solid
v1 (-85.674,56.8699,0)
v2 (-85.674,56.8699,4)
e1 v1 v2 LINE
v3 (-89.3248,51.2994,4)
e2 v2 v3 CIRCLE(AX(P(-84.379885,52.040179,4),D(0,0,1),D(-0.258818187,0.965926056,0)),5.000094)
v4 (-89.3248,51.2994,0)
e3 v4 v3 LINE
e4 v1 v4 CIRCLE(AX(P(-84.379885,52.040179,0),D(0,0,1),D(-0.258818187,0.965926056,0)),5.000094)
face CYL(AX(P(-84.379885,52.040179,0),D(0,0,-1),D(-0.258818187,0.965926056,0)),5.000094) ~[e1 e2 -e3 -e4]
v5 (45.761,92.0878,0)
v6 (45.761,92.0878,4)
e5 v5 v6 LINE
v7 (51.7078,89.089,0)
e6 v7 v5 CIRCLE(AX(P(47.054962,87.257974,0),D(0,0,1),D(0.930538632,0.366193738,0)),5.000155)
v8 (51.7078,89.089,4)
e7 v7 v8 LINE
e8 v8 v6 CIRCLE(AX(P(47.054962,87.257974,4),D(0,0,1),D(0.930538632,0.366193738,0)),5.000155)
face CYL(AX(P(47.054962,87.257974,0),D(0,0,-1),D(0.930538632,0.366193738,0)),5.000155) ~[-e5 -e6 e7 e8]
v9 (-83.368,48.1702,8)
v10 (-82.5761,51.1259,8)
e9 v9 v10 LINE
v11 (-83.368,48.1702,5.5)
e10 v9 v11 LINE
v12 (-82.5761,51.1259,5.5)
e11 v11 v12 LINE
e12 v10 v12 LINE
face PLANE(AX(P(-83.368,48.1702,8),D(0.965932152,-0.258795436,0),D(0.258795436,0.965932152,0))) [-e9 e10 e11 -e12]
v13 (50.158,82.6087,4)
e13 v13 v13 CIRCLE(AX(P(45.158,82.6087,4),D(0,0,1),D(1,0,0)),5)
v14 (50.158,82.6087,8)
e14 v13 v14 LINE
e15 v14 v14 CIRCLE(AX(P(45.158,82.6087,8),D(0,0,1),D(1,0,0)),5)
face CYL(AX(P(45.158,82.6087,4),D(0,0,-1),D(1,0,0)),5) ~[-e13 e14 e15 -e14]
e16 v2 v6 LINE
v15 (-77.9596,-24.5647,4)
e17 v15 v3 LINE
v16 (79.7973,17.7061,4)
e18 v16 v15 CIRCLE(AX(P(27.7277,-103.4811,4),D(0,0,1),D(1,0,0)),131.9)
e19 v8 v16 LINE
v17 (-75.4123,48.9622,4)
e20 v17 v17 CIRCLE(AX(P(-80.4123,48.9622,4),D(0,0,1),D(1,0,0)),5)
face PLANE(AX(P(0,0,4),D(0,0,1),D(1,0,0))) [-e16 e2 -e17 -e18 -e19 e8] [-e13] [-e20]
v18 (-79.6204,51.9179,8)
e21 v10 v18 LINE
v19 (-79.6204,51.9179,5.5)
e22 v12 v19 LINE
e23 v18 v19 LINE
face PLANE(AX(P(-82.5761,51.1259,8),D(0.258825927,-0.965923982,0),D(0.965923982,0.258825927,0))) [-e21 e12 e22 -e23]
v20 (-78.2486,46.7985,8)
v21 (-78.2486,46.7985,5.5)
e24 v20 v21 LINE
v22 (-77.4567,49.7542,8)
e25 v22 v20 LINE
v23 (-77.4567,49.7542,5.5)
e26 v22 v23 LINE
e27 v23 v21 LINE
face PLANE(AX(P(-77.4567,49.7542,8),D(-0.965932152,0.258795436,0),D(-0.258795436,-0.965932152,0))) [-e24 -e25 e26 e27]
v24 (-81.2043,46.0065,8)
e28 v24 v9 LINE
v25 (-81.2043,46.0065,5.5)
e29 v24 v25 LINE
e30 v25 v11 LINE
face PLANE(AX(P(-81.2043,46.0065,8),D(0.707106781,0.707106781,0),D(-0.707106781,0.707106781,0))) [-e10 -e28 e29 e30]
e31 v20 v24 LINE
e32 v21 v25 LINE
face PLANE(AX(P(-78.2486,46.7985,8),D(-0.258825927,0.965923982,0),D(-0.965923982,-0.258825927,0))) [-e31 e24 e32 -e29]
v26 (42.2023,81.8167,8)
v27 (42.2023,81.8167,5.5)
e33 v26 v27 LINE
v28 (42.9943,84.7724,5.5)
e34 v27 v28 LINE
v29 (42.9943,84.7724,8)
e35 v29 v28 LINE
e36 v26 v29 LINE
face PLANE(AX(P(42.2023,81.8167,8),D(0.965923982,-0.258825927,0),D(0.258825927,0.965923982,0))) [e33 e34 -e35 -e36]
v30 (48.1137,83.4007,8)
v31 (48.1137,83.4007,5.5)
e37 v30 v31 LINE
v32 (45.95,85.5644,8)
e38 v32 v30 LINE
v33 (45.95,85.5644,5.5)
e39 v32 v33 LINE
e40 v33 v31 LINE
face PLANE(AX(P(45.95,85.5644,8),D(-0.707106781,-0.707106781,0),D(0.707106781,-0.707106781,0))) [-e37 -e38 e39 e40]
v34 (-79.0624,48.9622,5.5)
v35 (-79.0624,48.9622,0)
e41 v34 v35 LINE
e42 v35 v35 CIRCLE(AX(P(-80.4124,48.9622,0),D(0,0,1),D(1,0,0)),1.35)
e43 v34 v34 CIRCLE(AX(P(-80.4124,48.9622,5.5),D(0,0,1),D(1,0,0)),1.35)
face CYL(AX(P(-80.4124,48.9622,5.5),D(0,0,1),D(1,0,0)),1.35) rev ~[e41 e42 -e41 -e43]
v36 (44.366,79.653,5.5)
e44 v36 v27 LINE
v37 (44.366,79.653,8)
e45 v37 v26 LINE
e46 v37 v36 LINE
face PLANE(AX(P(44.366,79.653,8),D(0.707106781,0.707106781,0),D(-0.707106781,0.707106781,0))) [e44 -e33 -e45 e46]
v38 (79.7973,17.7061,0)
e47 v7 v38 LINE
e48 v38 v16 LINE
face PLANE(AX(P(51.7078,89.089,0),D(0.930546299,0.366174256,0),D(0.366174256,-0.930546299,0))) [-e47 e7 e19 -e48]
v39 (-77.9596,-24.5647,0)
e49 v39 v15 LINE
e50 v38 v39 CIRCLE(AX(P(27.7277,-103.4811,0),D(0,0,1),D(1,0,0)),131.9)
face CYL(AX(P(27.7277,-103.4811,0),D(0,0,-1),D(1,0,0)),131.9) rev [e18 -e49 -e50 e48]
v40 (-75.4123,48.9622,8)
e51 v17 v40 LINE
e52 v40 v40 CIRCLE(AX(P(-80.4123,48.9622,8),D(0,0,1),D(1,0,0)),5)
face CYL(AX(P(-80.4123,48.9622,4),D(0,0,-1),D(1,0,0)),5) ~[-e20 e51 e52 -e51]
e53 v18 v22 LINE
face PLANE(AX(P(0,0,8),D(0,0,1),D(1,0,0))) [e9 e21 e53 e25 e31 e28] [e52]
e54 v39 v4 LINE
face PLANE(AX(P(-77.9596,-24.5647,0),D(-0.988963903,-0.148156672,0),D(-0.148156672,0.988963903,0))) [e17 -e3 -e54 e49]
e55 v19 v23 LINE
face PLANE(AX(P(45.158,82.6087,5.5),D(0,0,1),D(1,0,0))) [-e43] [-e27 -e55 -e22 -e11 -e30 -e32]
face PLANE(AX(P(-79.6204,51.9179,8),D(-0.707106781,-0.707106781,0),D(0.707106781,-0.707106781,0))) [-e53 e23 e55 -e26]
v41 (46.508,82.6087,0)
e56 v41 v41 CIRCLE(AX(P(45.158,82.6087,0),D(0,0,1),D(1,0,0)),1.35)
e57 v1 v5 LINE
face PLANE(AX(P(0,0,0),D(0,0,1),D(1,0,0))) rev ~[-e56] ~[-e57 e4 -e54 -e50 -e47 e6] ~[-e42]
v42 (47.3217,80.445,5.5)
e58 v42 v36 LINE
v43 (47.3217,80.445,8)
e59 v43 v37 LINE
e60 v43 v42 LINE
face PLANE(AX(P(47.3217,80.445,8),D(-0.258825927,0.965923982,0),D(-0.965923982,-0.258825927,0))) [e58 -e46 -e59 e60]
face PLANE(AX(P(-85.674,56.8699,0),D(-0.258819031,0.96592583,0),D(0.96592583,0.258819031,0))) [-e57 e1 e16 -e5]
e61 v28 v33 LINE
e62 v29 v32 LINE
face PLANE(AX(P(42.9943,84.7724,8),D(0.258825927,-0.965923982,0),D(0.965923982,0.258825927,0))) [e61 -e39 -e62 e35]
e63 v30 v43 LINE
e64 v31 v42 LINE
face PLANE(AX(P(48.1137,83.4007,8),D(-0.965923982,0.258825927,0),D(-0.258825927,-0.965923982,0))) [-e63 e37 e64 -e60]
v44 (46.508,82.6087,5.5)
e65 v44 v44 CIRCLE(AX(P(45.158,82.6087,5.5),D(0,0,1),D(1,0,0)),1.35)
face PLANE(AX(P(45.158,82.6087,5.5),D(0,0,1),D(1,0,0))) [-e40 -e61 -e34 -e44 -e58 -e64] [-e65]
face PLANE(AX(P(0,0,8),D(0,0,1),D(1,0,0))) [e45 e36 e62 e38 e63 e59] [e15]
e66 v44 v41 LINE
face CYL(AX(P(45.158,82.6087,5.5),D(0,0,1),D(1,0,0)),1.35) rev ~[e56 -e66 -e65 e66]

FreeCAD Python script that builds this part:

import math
import FreeCAD as App
import Part
import Sketcher
Q = App.Units.Quantity

doc = App.newDocument("Part")
params = doc.addObject("Spreadsheet::Sheet", "Params")
for row, (alias, value) in enumerate([
    ("sketch1_radius", "5 mm"),
    ("sketch1_radius2", "131.9 mm"),
    ("pad1_length", "4 mm"),
    ("sketch2_diameter", "10 mm"),
    ("pad2_length", "4 mm"),
    ("sketch3_length", "3.06 mm"),
    ("pocket1_length", "2.5 mm"),
    ("sketch4_diameter", "2.7 mm"),
    ("pocket2_length", "5.5 mm"),
], start=1):
    params.set(f"A{row}", alias)
    params.set(f"B{row}", "=" + value)
    params.setAlias(f"B{row}", alias)

body = doc.addObject("PartDesign::Body", "Body")

sketch1 = doc.addObject("Sketcher::SketchObject", "Sketch")
body.addObject(sketch1)
sketch1.AttachmentSupport = (doc.XY_Plane, [""])
sketch1.MapMode = "FlatFace"
sketch1.addGeometry(Part.LineSegment(App.Vector(-89.3, 51.3, 0), App.Vector(-78, -24.6, 0)), False)
sketch1.addGeometry(Part.ArcOfCircle(Part.Circle(App.Vector(27.7, -103.5, 0), App.Vector(0, 0, 1), 131.9), math.radians(67), math.radians(143)), False)
sketch1.addGeometry(Part.LineSegment(App.Vector(79.8, 17.7, 0), App.Vector(51.7, 89.1, 0)), False)
sketch1.addGeometry(Part.ArcOfCircle(Part.Circle(App.Vector(47.1, 87.3, 0), App.Vector(0, 0, 1), 5), math.radians(21), math.radians(105)), False)
sketch1.addGeometry(Part.LineSegment(App.Vector(45.8, 92.1, 0), App.Vector(-85.7, 56.9, 0)), False)
sketch1.addGeometry(Part.ArcOfCircle(Part.Circle(App.Vector(-84.4, 52, 0), App.Vector(0, 0, 1), 5), math.radians(105), math.radians(189)), False)
sketch1.addConstraint(Sketcher.Constraint("Coincident", 0, 2, 1, 2))
sketch1.addConstraint(Sketcher.Constraint("Coincident", 1, 1, 2, 1))
sketch1.addConstraint(Sketcher.Constraint("Tangent", 2, 2, 3, 1))
sketch1.addConstraint(Sketcher.Constraint("Tangent", 3, 2, 4, 1))
sketch1.addConstraint(Sketcher.Constraint("Tangent", 4, 2, 5, 1))
sketch1.addConstraint(Sketcher.Constraint("Tangent", 5, 2, 0, 1))
sketch1.addConstraint(Sketcher.Constraint("Equal", 3, 5))
sketch1.addConstraint(Sketcher.Constraint("Equal", 0, 2))
sketch1.addConstraint(Sketcher.Constraint("Radius", 3, 5.0))
sketch1.addConstraint(Sketcher.Constraint("Radius", 1, 131.9))
sketch1.addConstraint(Sketcher.Constraint("Angle", 4, Q("-165 deg")))
sketch1.addConstraint(Sketcher.Constraint("Angle", 0, Q("-81.48 deg")))
sketch1.addConstraint(Sketcher.Constraint("Angle", 2, Q("111.4799 deg")))
sketch1.addConstraint(Sketcher.Constraint("DistanceX", 5, 3, -1, 1, 84.38))
sketch1.addConstraint(Sketcher.Constraint("DistanceY", -1, 1, 4, 2, 56.87))
sketch1.addConstraint(Sketcher.Constraint("DistanceX", 1, 3, 2, 2, 23.98))
sketch1.addConstraint(Sketcher.Constraint("DistanceY", 1, 3, 2, 2, 192.57))
sketch1.setExpression("Constraints[8]", "Params.sketch1_radius")
sketch1.setExpression("Constraints[9]", "Params.sketch1_radius2")
pad1 = doc.addObject("PartDesign::Pad", "Pad")
body.addObject(pad1)
pad1.Profile = sketch1
pad1.setExpression("Length", "Params.pad1_length")

sketch2 = doc.addObject("Sketcher::SketchObject", "Sketch001")
body.addObject(sketch2)
sketch2.AttachmentSupport = (doc.XY_Plane, [""])
sketch2.MapMode = "FlatFace"
sketch2.AttachmentOffset = App.Placement(App.Vector(0, 0, 4), App.Rotation())
sketch2.addGeometry(Part.Circle(App.Vector(-80, 49, 0), App.Vector(0, 0, 1), 5), False)
sketch2.addGeometry(Part.Circle(App.Vector(45, 83, 0), App.Vector(0, 0, 1), 5), False)
sketch2.addConstraint(Sketcher.Constraint("Equal", 0, 1))
sketch2.addConstraint(Sketcher.Constraint("Diameter", 0, 10.0))
sketch2.addConstraint(Sketcher.Constraint("DistanceX", -1, 1, 1, 3, 45.158))
sketch2.addConstraint(Sketcher.Constraint("DistanceX", 0, 3, -1, 1, 80.4123))
sketch2.addConstraint(Sketcher.Constraint("DistanceY", -1, 1, 0, 3, 48.9622))
sketch2.addConstraint(Sketcher.Constraint("DistanceY", -1, 1, 1, 3, 82.6087))
sketch2.setExpression("Constraints[1]", "Params.sketch2_diameter")
pad2 = doc.addObject("PartDesign::Pad", "Pad001")
body.addObject(pad2)
pad2.Profile = sketch2
pad2.setExpression("Length", "Params.pad2_length")

sketch3 = doc.addObject("Sketcher::SketchObject", "Sketch002")
body.addObject(sketch3)
sketch3.AttachmentSupport = (doc.XY_Plane, [""])
sketch3.MapMode = "FlatFace"
sketch3.AttachmentOffset = App.Placement(App.Vector(0, 0, 8), App.Rotation())
sketch3.addGeometry(Part.LineSegment(App.Vector(-77.5, 49.8, 0), App.Vector(-79.6, 51.9, 0)), False)
sketch3.addGeometry(Part.LineSegment(App.Vector(-79.6, 51.9, 0), App.Vector(-82.6, 51.1, 0)), False)
sketch3.addGeometry(Part.LineSegment(App.Vector(-82.6, 51.1, 0), App.Vector(-83.4, 48.2, 0)), False)
sketch3.addGeometry(Part.LineSegment(App.Vector(-83.4, 48.2, 0), App.Vector(-81.2, 46, 0)), False)
sketch3.addGeometry(Part.LineSegment(App.Vector(-81.2, 46, 0), App.Vector(-78.2, 46.8, 0)), False)
sketch3.addGeometry(Part.LineSegment(App.Vector(-78.2, 46.8, 0), App.Vector(-77.5, 49.8, 0)), False)
sketch3.addGeometry(Part.LineSegment(App.Vector(48.1, 83.4, 0), App.Vector(46, 85.6, 0)), False)
sketch3.addGeometry(Part.LineSegment(App.Vector(46, 85.6, 0), App.Vector(43, 84.8, 0)), False)
sketch3.addGeometry(Part.LineSegment(App.Vector(43, 84.8, 0), App.Vector(42.2, 81.8, 0)), False)
sketch3.addGeometry(Part.LineSegment(App.Vector(42.2, 81.8, 0), App.Vector(44.4, 79.7, 0)), False)
sketch3.addGeometry(Part.LineSegment(App.Vector(44.4, 79.7, 0), App.Vector(47.3, 80.4, 0)), False)
sketch3.addGeometry(Part.LineSegment(App.Vector(47.3, 80.4, 0), App.Vector(48.1, 83.4, 0)), False)
sketch3.addConstraint(Sketcher.Constraint("Coincident", 0, 2, 1, 1))
sketch3.addConstraint(Sketcher.Constraint("Coincident", 1, 2, 2, 1))
sketch3.addConstraint(Sketcher.Constraint("Coincident", 2, 2, 3, 1))
sketch3.addConstraint(Sketcher.Constraint("Coincident", 3, 2, 4, 1))
sketch3.addConstraint(Sketcher.Constraint("Coincident", 4, 2, 5, 1))
sketch3.addConstraint(Sketcher.Constraint("Coincident", 5, 2, 0, 1))
sketch3.addConstraint(Sketcher.Constraint("Coincident", 6, 2, 7, 1))
sketch3.addConstraint(Sketcher.Constraint("Coincident", 7, 2, 8, 1))
sketch3.addConstraint(Sketcher.Constraint("Coincident", 8, 2, 9, 1))
sketch3.addConstraint(Sketcher.Constraint("Coincident", 9, 2, 10, 1))
sketch3.addConstraint(Sketcher.Constraint("Coincident", 10, 2, 11, 1))
sketch3.addConstraint(Sketcher.Constraint("Coincident", 11, 2, 6, 1))
sketch3.addConstraint(Sketcher.Constraint("Parallel", 0, 3))
sketch3.addConstraint(Sketcher.Constraint("Parallel", 1, 4))
sketch3.addConstraint(Sketcher.Constraint("Parallel", 2, 5))
sketch3.addConstraint(Sketcher.Constraint("Parallel", 3, 6))
sketch3.addConstraint(Sketcher.Constraint("Parallel", 4, 7))
sketch3.addConstraint(Sketcher.Constraint("Parallel", 5, 8))
sketch3.addConstraint(Sketcher.Constraint("Parallel", 6, 9))
sketch3.addConstraint(Sketcher.Constraint("Parallel", 7, 10))
sketch3.addConstraint(Sketcher.Constraint("Parallel", 8, 11))
sketch3.addConstraint(Sketcher.Constraint("Equal", 0, 1))
sketch3.addConstraint(Sketcher.Constraint("Equal", 1, 2))
sketch3.addConstraint(Sketcher.Constraint("Equal", 2, 3))
sketch3.addConstraint(Sketcher.Constraint("Equal", 5, 6))
sketch3.addConstraint(Sketcher.Constraint("Equal", 6, 7))
sketch3.addConstraint(Sketcher.Constraint("Equal", 7, 8))
sketch3.addConstraint(Sketcher.Constraint("Equal", 8, 9))
sketch3.addConstraint(Sketcher.Constraint("Angle", 0, Q("135 deg")))
sketch3.addConstraint(Sketcher.Constraint("Angle", 1, Q("-164.9996 deg")))
sketch3.addConstraint(Sketcher.Constraint("Angle", 8, Q("-105.0004 deg")))
sketch3.addConstraint(Sketcher.Constraint("Distance", 0, 3.06))
sketch3.addConstraint(Sketcher.Constraint("DistanceX", -1, 1, 6, 2, 45.95))
sketch3.addConstraint(Sketcher.Constraint("DistanceY", -1, 1, 0, 2, 51.918))
sketch3.addConstraint(Sketcher.Constraint("DistanceX", 1, 2, -1, 1, 82.576))
sketch3.addConstraint(Sketcher.Constraint("DistanceY", -1, 1, 9, 2, 79.653))
sketch3.setExpression("Constraints[31]", "Params.sketch3_length")
pocket1 = doc.addObject("PartDesign::Pocket", "Pocket")
body.addObject(pocket1)
pocket1.Profile = sketch3
pocket1.setExpression("Length", "Params.pocket1_length")

sketch4 = doc.addObject("Sketcher::SketchObject", "Sketch003")
body.addObject(sketch4)
sketch4.AttachmentSupport = (doc.XY_Plane, [""])
sketch4.MapMode = "FlatFace"
sketch4.AttachmentOffset = App.Placement(App.Vector(0, 0, 5.5), App.Rotation())
sketch4.addGeometry(Part.Circle(App.Vector(45.2, 82.6, 0), App.Vector(0, 0, 1), 1.4), False)
sketch4.addGeometry(Part.Circle(App.Vector(-80.4, 49, 0), App.Vector(0, 0, 1), 1.4), False)
sketch4.addConstraint(Sketcher.Constraint("Equal", 0, 1))
sketch4.addConstraint(Sketcher.Constraint("Diameter", 0, 2.7))
sketch4.addConstraint(Sketcher.Constraint("DistanceX", -1, 1, 0, 3, 45.158))
sketch4.addConstraint(Sketcher.Constraint("DistanceY", -1, 1, 0, 3, 82.6087))
sketch4.addConstraint(Sketcher.Constraint("DistanceX", 1, 3, -1, 1, 80.4124))
sketch4.addConstraint(Sketcher.Constraint("DistanceY", -1, 1, 1, 3, 48.9622))
sketch4.setExpression("Constraints[1]", "Params.sketch4_diameter")
pocket2 = doc.addObject("PartDesign::Pocket", "Pocket001")
body.addObject(pocket2)
pocket2.Profile = sketch4
pocket2.setExpression("Length", "Params.pocket2_length")

doc.recompute()
